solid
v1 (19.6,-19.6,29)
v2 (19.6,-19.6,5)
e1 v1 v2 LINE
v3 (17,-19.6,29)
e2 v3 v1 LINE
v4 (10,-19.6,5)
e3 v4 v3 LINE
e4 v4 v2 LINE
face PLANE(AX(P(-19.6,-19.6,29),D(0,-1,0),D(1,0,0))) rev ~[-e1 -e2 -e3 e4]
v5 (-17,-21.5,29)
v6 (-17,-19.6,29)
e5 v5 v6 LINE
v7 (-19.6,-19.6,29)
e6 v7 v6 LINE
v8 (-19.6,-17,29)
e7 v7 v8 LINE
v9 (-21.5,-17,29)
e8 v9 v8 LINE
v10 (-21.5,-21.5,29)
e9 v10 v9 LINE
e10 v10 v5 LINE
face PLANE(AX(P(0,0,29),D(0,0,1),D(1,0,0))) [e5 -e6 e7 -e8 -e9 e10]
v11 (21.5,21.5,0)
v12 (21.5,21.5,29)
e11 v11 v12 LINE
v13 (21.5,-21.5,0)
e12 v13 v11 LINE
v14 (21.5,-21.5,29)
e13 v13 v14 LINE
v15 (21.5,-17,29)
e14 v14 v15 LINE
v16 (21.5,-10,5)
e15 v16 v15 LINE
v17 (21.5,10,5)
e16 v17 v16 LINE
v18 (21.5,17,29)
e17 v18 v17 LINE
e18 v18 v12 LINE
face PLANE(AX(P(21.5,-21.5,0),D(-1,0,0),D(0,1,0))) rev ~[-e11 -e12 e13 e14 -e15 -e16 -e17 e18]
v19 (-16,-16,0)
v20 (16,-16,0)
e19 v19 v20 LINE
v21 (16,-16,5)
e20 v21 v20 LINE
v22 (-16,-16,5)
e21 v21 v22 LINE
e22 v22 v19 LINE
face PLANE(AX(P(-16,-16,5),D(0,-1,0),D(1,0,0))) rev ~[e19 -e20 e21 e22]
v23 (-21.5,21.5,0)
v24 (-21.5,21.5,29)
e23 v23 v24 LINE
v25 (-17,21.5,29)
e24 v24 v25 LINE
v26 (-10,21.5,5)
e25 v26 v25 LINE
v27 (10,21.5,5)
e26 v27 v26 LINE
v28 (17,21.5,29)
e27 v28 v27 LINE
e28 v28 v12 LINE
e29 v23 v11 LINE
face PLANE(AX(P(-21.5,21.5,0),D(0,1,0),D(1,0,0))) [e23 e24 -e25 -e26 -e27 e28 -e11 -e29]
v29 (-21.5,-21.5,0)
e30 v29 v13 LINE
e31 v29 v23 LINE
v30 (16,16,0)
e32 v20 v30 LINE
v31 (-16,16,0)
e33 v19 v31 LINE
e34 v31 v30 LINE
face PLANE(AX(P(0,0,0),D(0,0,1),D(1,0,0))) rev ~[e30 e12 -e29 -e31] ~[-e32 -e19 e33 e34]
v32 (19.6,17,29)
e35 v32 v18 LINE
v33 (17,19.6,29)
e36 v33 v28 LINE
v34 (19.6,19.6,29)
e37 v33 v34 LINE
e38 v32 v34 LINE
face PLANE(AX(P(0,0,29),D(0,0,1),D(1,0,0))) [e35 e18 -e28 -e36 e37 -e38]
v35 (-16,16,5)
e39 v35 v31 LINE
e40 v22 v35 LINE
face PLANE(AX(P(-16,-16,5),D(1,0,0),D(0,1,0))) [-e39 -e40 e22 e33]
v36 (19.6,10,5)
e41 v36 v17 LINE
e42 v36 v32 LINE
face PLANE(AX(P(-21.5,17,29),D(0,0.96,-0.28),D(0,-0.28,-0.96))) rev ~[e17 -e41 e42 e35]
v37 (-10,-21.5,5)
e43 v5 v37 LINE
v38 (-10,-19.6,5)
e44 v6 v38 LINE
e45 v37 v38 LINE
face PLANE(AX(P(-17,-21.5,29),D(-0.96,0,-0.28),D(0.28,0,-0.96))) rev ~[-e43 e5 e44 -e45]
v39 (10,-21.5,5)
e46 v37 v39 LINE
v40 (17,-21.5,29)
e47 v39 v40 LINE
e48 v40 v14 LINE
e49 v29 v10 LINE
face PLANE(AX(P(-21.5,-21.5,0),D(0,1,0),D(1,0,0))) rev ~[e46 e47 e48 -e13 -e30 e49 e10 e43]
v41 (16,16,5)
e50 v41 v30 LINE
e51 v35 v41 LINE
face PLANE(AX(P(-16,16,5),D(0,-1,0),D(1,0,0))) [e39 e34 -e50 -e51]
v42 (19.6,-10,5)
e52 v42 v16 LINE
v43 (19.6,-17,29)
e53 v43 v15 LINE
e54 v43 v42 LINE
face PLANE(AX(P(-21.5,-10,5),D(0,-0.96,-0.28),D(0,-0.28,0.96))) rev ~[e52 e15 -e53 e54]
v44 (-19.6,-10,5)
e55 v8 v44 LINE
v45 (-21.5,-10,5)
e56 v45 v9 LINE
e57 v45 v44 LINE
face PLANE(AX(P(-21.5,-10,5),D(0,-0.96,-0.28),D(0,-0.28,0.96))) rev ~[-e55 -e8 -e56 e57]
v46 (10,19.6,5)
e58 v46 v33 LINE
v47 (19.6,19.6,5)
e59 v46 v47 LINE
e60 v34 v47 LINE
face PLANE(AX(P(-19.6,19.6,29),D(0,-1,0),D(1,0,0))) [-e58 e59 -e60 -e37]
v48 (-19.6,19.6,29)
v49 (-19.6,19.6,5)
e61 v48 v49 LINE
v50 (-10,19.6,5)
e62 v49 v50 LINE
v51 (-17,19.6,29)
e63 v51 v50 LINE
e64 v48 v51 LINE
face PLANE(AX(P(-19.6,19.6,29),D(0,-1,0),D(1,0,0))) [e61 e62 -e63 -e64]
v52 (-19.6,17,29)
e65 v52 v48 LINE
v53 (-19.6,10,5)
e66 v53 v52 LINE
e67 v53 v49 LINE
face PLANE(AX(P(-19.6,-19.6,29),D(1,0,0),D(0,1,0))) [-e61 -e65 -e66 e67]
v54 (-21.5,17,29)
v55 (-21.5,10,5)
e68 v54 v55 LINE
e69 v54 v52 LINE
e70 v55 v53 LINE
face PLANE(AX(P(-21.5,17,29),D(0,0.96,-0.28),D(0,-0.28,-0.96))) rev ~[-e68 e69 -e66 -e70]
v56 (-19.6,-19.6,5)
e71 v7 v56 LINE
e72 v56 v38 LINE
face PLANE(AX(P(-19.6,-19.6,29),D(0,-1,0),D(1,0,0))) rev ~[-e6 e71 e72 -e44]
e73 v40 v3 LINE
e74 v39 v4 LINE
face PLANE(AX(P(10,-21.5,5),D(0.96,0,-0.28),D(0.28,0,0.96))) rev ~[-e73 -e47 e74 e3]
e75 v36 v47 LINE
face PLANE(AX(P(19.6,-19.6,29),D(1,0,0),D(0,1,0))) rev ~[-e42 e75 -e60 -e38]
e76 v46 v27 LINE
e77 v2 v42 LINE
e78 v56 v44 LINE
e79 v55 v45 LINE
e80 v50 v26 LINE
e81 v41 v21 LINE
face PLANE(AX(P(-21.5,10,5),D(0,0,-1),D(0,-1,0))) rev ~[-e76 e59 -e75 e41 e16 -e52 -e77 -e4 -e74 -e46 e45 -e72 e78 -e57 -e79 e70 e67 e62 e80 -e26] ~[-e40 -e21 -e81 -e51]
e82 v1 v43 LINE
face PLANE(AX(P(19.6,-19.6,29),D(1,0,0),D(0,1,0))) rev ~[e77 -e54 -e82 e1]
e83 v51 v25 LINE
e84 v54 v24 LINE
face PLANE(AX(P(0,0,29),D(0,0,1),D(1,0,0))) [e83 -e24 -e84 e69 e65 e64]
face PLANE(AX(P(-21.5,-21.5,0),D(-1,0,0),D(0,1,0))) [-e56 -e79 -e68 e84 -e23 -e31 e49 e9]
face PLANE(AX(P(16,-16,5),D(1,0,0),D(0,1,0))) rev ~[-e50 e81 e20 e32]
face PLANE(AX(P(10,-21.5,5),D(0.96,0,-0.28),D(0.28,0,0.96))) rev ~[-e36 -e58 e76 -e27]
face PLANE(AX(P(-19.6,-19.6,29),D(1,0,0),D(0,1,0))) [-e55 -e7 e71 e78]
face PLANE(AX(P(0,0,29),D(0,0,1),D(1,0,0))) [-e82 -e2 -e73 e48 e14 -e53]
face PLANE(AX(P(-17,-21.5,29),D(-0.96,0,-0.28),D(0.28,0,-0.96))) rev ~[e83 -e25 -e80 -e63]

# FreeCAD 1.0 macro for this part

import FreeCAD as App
import Part
import Sketcher
from FreeCAD import Vector


def add_polygon(sketch, points):
    """Adds a closed chain of lines whose ends are joined by coincident constraints."""
    first, n = sketch.GeometryCount, len(points)
    for a, b in zip(points, points[1:] + points[:1]):
        sketch.addGeometry(Part.LineSegment(App.Vector(*a, 0), App.Vector(*b, 0)), False)
    for i in range(n):
        sketch.addConstraint(Sketcher.Constraint("Coincident", first + i, 2, first + (i + 1) % n, 1))

doc = App.newDocument("Part")
body = doc.addObject("PartDesign::Body", "Body")

# Sketch on XY plane
sketch1 = body.newObject("Sketcher::SketchObject", "Sketch")
sketch1.AttachmentSupport = (doc.getObject("XY_Plane"), [""])
sketch1.MapMode = "FlatFace"
add_polygon(sketch1, [(-22, 22), (-22, -22), (22, -22), (22, 22)])  # lines 0-3
sketch1.addConstraint(Sketcher.Constraint("Vertical", 0))
sketch1.addConstraint(Sketcher.Constraint("Horizontal", 1))
sketch1.addConstraint(Sketcher.Constraint("Vertical", 2))
sketch1.addConstraint(Sketcher.Constraint("Horizontal", 3))
sketch1.addConstraint(Sketcher.Constraint("Symmetric", 0, 2, 2, 2, -1, 1))
sketch1.addConstraint(Sketcher.Constraint("Equal", 3, 0))
sketch1.addConstraint(Sketcher.Constraint("DistanceX", 1, 1, 1, 2, 43.0))
pad1 = body.newObject("PartDesign::Pad", "Pad")
pad1.Profile = sketch1
pad1.Length = 29

# Sketch on XY plane
sketch2 = body.newObject("Sketcher::SketchObject", "Sketch001")
sketch2.AttachmentSupport = (doc.getObject("XY_Plane"), [""])
sketch2.MapMode = "FlatFace"
sketch2.AttachmentOffset = App.Placement(Vector(0, 0, 29), App.Rotation())
add_polygon(sketch2, [(-20, 20), (-20, -20), (20, -20), (20, 20)])  # lines 0-3
sketch2.addConstraint(Sketcher.Constraint("Vertical", 0))
sketch2.addConstraint(Sketcher.Constraint("Horizontal", 1))
sketch2.addConstraint(Sketcher.Constraint("Vertical", 2))
sketch2.addConstraint(Sketcher.Constraint("Horizontal", 3))
sketch2.addConstraint(Sketcher.Constraint("Symmetric", 0, 2, 2, 2, -1, 1))
sketch2.addConstraint(Sketcher.Constraint("Equal", 3, 0))
sketch2.addConstraint(Sketcher.Constraint("DistanceX", 1, 1, 1, 2, 39.2))
pocket1 = body.newObject("PartDesign::Pocket", "Pocket")
pocket1.Profile = sketch2
pocket1.Length = 24

# Sketch on XY plane
sketch3 = body.newObject("Sketcher::SketchObject", "Sketch002")
sketch3.AttachmentSupport = (doc.getObject("XY_Plane"), [""])
sketch3.MapMode = "FlatFace"
sketch3.AttachmentOffset = App.Placement(Vector(0, 0, 5), App.Rotation())
add_polygon(sketch3, [(-16, 16), (-16, -16), (16, -16), (16, 16)])  # lines 0-3
sketch3.addConstraint(Sketcher.Constraint("Vertical", 0))
sketch3.addConstraint(Sketcher.Constraint("Horizontal", 1))
sketch3.addConstraint(Sketcher.Constraint("Vertical", 2))
sketch3.addConstraint(Sketcher.Constraint("Horizontal", 3))
sketch3.addConstraint(Sketcher.Constraint("Symmetric", 0, 2, 2, 2, -1, 1))
sketch3.addConstraint(Sketcher.Constraint("Equal", 3, 0))
sketch3.addConstraint(Sketcher.Constraint("DistanceX", 1, 1, 1, 2, 32.0))
pocket2 = body.newObject("PartDesign::Pocket", "Pocket001")
pocket2.Profile = sketch3
pocket2.Type = "ThroughAll"

# Sketch on XZ plane
sketch4 = body.newObject("Sketcher::SketchObject", "Sketch003")
sketch4.AttachmentSupport = (doc.getObject("XZ_Plane"), [""])
sketch4.MapMode = "FlatFace"
sketch4.AttachmentOffset = App.Placement(Vector(0, 0, 21.5), App.Rotation())
add_polygon(sketch4, [(-17, 29), (-10, 5), (10, 5), (17, 29)])  # lines 0-3
sketch4.addConstraint(Sketcher.Constraint("Horizontal", 1))
sketch4.addConstraint(Sketcher.Constraint("Horizontal", 3))
sketch4.addConstraint(Sketcher.Constraint("Equal", 0, 2))
sketch4.addConstraint(Sketcher.Constraint("DistanceX", 1, 1, 1, 2, 20.0))
sketch4.addConstraint(Sketcher.Constraint("DistanceX", 3, 2, 3, 1, 34.0))
sketch4.addConstraint(Sketcher.Constraint("Distance", 0, 25.0))
sketch4.addConstraint(Sketcher.Constraint("DistanceX", 0, 2, -1, 1, 10.0))
sketch4.addConstraint(Sketcher.Constraint("DistanceY", -1, 1, 0, 2, 5.0))
pocket3 = body.newObject("PartDesign::Pocket", "Pocket002")
pocket3.Profile = sketch4
pocket3.Type = "ThroughAll"

# Sketch on YZ plane
sketch5 = body.newObject("Sketcher::SketchObject", "Sketch004")
sketch5.AttachmentSupport = (doc.getObject("YZ_Plane"), [""])
sketch5.MapMode = "FlatFace"
sketch5.AttachmentOffset = App.Placement(Vector(0, 0, -21.5), App.Rotation())
add_polygon(sketch5, [(17, 29), (10, 5), (-10, 5), (-17, 29)])  # lines 0-3
sketch5.addConstraint(Sketcher.Constraint("Horizontal", 1))
sketch5.addConstraint(Sketcher.Constraint("Horizontal", 3))
sketch5.addConstraint(Sketcher.Constraint("Equal", 0, 2))
sketch5.addConstraint(Sketcher.Constraint("DistanceX", 1, 2, 1, 1, 20.0))
sketch5.addConstraint(Sketcher.Constraint("DistanceX", 3, 1, 3, 2, 34.0))
sketch5.addConstraint(Sketcher.Constraint("Distance", 0, 25.0))
sketch5.addConstraint(Sketcher.Constraint("DistanceX", -1, 1, 0, 2, 10.0))
sketch5.addConstraint(Sketcher.Constraint("DistanceY", -1, 1, 0, 2, 5.0))
pocket4 = body.newObject("PartDesign::Pocket", "Pocket003")
pocket4.Profile = sketch5
pocket4.Type = "ThroughAll"
pocket4.Reversed = True

doc.recompute()
